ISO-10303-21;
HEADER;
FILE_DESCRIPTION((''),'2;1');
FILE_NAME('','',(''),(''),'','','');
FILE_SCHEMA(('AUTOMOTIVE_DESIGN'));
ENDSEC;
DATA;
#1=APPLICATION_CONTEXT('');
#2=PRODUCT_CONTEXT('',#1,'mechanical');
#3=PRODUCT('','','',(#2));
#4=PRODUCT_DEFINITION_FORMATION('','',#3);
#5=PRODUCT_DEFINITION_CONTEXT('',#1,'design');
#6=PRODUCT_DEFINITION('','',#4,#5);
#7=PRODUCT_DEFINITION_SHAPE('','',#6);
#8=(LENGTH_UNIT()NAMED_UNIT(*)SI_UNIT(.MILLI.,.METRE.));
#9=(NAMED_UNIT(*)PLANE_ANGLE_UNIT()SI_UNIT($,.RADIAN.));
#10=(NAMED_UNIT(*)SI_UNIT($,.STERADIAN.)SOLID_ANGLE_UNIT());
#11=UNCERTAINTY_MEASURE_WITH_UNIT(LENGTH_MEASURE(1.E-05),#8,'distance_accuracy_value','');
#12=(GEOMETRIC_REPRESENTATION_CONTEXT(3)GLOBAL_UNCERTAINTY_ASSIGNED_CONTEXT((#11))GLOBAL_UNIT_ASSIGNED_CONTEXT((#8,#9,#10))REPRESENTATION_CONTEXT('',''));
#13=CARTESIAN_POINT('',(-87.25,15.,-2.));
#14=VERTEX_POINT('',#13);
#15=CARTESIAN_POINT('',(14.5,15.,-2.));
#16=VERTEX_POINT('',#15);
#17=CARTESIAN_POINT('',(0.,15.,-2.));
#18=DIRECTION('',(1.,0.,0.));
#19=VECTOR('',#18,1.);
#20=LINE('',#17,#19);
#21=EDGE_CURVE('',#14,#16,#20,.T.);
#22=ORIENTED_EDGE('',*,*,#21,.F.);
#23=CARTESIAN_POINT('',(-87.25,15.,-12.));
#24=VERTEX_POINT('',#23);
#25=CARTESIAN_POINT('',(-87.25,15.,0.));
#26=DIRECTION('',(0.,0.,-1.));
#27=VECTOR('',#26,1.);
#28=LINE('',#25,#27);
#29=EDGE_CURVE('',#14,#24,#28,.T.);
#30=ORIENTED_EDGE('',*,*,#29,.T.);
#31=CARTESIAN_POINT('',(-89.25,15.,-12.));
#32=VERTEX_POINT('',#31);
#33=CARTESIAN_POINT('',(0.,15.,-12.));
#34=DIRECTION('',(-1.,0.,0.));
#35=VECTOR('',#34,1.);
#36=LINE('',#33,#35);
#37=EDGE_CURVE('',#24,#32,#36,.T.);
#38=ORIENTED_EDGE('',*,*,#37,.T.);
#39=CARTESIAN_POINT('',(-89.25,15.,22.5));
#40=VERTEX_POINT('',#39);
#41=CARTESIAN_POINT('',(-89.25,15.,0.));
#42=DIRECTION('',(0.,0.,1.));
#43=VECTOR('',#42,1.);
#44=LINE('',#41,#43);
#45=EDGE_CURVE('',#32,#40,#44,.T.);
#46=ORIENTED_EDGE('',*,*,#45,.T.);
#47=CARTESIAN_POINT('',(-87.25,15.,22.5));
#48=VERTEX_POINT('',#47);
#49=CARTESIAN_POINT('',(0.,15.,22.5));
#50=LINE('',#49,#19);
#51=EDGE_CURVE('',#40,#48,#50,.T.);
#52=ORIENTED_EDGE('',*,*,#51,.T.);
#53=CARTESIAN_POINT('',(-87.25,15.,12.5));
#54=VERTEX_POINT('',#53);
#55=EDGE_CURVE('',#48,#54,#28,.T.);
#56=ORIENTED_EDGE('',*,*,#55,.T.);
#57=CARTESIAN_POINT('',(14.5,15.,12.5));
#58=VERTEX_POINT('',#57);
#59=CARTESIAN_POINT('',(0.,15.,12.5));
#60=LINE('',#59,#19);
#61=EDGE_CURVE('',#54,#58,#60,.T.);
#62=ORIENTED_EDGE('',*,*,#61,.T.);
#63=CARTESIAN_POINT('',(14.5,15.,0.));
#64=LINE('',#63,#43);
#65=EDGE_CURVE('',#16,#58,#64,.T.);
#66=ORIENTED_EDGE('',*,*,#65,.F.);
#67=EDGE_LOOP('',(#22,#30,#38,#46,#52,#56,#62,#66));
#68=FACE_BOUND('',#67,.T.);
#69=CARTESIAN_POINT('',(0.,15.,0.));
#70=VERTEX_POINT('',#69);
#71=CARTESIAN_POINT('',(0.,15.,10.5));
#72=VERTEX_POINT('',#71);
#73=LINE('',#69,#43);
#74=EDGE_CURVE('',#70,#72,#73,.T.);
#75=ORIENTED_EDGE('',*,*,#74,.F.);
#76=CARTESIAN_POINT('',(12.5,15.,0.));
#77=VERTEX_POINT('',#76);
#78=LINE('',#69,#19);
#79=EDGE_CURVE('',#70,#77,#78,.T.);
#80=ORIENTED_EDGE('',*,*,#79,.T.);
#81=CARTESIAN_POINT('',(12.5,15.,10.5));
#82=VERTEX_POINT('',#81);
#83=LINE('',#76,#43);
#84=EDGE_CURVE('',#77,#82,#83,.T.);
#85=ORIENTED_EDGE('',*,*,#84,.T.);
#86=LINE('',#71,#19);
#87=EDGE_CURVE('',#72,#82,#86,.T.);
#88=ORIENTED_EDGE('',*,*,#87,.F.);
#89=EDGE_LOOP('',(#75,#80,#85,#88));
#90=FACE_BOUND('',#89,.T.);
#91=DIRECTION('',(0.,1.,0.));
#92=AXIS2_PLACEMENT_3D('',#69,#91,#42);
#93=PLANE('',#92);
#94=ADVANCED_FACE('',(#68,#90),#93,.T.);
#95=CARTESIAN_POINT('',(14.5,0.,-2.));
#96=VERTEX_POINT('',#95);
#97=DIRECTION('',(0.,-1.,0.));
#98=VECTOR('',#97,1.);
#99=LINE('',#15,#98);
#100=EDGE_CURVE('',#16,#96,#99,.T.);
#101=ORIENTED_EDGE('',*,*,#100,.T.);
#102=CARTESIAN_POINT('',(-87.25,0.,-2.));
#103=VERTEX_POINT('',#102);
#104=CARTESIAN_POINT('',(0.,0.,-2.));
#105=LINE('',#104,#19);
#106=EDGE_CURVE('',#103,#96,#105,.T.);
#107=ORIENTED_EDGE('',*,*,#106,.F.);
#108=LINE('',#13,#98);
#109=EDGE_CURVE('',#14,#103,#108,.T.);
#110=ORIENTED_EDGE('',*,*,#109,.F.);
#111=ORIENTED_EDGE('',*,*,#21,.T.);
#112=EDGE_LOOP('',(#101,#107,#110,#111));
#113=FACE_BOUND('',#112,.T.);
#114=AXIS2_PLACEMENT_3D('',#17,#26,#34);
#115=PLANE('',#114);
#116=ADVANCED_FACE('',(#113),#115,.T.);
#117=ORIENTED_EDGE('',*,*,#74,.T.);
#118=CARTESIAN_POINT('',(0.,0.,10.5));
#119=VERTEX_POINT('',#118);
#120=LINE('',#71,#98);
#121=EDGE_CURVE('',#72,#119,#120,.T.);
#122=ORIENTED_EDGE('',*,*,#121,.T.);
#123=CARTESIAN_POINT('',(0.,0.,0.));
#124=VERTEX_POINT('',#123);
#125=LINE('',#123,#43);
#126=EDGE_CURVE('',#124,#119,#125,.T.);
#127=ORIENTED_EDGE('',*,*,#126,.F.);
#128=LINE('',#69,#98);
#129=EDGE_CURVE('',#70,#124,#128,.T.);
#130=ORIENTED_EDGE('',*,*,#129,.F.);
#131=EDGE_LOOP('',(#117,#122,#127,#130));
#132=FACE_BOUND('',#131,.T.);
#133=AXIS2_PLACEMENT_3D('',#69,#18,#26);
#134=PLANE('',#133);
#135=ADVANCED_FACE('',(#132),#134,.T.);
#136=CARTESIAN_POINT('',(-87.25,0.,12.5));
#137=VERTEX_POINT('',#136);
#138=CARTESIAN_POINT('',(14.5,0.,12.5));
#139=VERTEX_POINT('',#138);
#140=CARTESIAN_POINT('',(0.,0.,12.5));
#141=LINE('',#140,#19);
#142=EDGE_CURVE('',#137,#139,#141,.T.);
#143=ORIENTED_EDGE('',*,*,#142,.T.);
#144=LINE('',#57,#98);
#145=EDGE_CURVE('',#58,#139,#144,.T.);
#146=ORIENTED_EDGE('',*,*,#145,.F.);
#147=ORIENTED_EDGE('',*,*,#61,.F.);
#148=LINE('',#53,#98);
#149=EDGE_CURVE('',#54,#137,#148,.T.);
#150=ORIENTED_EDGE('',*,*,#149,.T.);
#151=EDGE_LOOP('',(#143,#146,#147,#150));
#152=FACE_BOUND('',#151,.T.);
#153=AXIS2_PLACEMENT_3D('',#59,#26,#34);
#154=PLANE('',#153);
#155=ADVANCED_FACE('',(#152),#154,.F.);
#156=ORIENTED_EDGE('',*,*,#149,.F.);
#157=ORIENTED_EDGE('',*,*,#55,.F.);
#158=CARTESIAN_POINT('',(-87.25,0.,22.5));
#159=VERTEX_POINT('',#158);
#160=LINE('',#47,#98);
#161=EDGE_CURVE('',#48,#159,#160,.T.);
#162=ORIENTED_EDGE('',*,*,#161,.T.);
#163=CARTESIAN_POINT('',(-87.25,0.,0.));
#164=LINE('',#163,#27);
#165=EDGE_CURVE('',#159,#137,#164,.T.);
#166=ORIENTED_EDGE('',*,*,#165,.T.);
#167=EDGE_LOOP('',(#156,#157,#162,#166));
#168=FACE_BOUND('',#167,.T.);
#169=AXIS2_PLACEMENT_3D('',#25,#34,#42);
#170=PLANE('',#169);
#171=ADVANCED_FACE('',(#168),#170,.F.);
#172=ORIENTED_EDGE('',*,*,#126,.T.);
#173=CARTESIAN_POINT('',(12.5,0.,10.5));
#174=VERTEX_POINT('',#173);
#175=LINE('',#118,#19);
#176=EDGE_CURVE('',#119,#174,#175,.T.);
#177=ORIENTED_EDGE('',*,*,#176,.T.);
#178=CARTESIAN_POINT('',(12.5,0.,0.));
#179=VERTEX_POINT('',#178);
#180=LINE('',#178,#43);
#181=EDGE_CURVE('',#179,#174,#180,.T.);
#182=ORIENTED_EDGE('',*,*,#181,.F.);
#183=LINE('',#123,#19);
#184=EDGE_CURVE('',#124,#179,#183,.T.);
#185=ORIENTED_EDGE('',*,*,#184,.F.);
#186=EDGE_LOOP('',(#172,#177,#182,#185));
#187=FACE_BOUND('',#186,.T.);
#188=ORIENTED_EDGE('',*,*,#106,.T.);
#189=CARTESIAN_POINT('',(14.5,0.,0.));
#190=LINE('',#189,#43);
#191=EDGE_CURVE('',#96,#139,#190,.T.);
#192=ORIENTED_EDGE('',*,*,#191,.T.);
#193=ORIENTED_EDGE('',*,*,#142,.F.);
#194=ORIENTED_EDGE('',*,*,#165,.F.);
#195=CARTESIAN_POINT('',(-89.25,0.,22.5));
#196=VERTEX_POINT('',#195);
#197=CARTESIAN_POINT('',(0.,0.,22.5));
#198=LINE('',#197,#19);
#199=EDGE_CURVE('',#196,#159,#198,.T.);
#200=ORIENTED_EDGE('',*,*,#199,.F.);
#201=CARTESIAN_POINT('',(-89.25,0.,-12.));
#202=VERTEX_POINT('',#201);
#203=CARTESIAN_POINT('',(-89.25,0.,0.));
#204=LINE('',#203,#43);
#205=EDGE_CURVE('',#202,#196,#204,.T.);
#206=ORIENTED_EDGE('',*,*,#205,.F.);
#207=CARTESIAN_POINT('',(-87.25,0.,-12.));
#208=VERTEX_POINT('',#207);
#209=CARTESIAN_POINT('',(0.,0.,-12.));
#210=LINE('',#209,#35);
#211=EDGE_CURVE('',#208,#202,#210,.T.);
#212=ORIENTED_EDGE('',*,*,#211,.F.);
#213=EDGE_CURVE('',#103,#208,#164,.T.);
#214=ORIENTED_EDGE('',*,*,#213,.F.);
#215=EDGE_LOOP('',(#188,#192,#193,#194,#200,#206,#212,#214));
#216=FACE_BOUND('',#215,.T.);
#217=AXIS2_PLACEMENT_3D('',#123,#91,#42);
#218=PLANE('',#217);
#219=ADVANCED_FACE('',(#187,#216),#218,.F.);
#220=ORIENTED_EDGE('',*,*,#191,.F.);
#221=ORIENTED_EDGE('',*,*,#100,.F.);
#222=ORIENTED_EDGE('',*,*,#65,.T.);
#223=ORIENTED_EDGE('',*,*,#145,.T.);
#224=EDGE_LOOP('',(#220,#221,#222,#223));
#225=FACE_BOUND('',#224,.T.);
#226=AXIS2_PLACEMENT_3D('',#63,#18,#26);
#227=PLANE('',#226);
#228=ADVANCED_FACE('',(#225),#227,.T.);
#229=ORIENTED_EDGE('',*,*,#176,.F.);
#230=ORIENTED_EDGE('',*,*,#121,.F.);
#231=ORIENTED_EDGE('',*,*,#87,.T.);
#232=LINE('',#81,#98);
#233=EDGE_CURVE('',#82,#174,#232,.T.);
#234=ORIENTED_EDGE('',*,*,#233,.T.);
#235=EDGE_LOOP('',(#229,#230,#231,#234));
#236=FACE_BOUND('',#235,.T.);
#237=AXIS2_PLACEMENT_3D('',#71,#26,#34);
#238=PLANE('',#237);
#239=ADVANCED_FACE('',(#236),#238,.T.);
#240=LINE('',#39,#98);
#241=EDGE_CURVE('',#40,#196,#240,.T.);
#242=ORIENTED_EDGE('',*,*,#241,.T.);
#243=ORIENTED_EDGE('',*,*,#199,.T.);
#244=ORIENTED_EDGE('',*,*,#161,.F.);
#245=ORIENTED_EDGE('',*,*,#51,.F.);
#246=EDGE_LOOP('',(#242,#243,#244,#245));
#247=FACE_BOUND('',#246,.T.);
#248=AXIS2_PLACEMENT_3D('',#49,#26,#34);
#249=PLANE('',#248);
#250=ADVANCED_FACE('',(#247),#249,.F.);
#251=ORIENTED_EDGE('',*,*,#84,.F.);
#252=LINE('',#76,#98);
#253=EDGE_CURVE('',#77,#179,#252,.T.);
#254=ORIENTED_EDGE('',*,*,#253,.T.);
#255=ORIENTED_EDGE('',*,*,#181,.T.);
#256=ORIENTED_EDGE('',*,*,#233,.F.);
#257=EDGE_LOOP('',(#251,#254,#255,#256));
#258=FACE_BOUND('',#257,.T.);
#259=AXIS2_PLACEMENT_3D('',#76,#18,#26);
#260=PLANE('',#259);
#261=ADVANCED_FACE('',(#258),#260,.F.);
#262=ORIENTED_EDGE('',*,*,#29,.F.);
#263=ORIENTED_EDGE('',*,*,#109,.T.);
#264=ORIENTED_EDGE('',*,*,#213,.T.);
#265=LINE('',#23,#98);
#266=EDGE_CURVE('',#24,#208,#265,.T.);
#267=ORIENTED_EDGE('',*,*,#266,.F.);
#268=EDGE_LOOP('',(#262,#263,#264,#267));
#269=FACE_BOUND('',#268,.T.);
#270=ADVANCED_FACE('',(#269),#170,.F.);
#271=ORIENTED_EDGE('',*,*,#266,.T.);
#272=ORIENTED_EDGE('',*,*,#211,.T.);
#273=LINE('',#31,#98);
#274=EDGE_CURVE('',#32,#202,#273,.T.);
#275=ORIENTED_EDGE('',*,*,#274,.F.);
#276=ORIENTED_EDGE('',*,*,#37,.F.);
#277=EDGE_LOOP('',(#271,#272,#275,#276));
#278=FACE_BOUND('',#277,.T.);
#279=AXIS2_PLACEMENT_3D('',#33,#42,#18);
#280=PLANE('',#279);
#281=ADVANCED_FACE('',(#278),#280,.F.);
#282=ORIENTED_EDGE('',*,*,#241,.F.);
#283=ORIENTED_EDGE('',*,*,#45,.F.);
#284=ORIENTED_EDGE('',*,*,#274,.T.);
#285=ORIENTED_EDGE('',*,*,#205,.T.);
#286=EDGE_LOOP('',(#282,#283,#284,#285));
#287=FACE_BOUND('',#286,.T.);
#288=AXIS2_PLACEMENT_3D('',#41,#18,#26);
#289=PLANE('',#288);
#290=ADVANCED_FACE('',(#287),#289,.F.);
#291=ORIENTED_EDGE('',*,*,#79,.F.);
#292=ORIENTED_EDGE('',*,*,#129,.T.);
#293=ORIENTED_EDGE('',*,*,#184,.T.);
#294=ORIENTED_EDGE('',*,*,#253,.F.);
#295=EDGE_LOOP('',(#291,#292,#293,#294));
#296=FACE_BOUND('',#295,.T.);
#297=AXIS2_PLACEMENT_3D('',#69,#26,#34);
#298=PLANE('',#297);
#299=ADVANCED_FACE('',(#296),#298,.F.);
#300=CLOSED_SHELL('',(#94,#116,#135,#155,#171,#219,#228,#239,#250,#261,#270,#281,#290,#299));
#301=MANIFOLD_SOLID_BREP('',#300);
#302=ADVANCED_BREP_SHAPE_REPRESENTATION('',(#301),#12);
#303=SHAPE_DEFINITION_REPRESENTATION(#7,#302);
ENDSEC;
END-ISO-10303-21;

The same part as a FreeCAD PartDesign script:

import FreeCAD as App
import Part
import Sketcher
Q = App.Units.Quantity


def add_polygon(sketch, points):
    """Adds a closed chain of lines whose ends are joined by coincident constraints."""
    first, n = sketch.GeometryCount, len(points)
    for a, b in zip(points, points[1:] + points[:1]):
        sketch.addGeometry(Part.LineSegment(App.Vector(*a, 0), App.Vector(*b, 0)), False)
    for i in range(n):
        sketch.addConstraint(Sketcher.Constraint("Coincident", first + i, 2, first + (i + 1) % n, 1))

doc = App.newDocument("Part")
params = doc.addObject("Spreadsheet::Sheet", "Params")
for row, (alias, value) in enumerate([
    ("sketch1_width", "2 mm"),
    ("sketch1_height", "10 mm"),
    ("sketch1_width2", "12.5 mm"),
    ("sketch1_height2", "14.5 mm"),
    ("sketch1_height3", "10.5 mm"),
    ("pad1_length", "15 mm"),
], start=1):
    params.set(f"A{row}", alias)
    params.set(f"B{row}", "=" + value)
    params.setAlias(f"B{row}", alias)

body = doc.addObject("PartDesign::Body", "Body")

# Sketch on XZ plane
sketch1 = body.newObject("Sketcher::SketchObject", "Sketch")
sketch1.AttachmentSupport = (doc.getObject("XZ_Plane"), [""])
sketch1.MapMode = "FlatFace"
add_polygon(sketch1, [(-87.2, 22.5), (-87.2, 12.5), (14.5, 12.5), (14.5, -2), (-87.2, -2), (-87.2, -12), (-89.2, -12), (-89.2, 22.5)])  # lines 0-7
add_polygon(sketch1, [(12.5, 10.5), (0, 10.5), (0, 0), (12.5, 0)])  # lines 8-11
sketch1.addConstraint(Sketcher.Constraint("Vertical", 0))
sketch1.addConstraint(Sketcher.Constraint("Horizontal", 1))
sketch1.addConstraint(Sketcher.Constraint("Vertical", 2))
sketch1.addConstraint(Sketcher.Constraint("Horizontal", 3))
sketch1.addConstraint(Sketcher.Constraint("Vertical", 4))
sketch1.addConstraint(Sketcher.Constraint("Horizontal", 5))
sketch1.addConstraint(Sketcher.Constraint("Vertical", 6))
sketch1.addConstraint(Sketcher.Constraint("Horizontal", 7))
sketch1.addConstraint(Sketcher.Constraint("Horizontal", 8))
sketch1.addConstraint(Sketcher.Constraint("Vertical", 9))
sketch1.addConstraint(Sketcher.Constraint("Horizontal", 10))
sketch1.addConstraint(Sketcher.Constraint("Vertical", 11))
sketch1.addConstraint(Sketcher.Constraint("Coincident", 9, 2, -1, 1))
sketch1.addConstraint(Sketcher.Constraint("Vertical", 0, 2, 3, 2))
sketch1.addConstraint(Sketcher.Constraint("Equal", 0, 4))
sketch1.addConstraint(Sketcher.Constraint("DistanceX", 5, 2, 5, 1, Q("2 mm")))
sketch1.addConstraint(Sketcher.Constraint("DistanceY", 0, 2, 0, 1, Q("10 mm")))
sketch1.addConstraint(Sketcher.Constraint("DistanceX", 8, 2, 8, 1, Q("12.5 mm")))
sketch1.addConstraint(Sketcher.Constraint("DistanceY", 2, 2, 2, 1, Q("14.5 mm")))
sketch1.addConstraint(Sketcher.Constraint("DistanceY", 9, 2, 9, 1, Q("10.5 mm")))
sketch1.addConstraint(Sketcher.Constraint("DistanceY", 2, 2, -1, 1, Q("2 mm")))
sketch1.addConstraint(Sketcher.Constraint("DistanceX", 10, 2, 2, 2, Q("2 mm")))
sketch1.addConstraint(Sketcher.Constraint("DistanceX", 1, 1, 1, 2, Q("101.75 mm")))
sketch1.setExpression("Constraints[27]", "Params.sketch1_width")
sketch1.setExpression("Constraints[28]", "Params.sketch1_height")
sketch1.setExpression("Constraints[29]", "Params.sketch1_width2")
sketch1.setExpression("Constraints[30]", "Params.sketch1_height2")
sketch1.setExpression("Constraints[31]", "Params.sketch1_height3")
pad1 = body.newObject("PartDesign::Pad", "Pad")
pad1.Profile = sketch1
pad1.setExpression("Length", "Params.pad1_length")
pad1.Reversed = True

doc.recompute()
